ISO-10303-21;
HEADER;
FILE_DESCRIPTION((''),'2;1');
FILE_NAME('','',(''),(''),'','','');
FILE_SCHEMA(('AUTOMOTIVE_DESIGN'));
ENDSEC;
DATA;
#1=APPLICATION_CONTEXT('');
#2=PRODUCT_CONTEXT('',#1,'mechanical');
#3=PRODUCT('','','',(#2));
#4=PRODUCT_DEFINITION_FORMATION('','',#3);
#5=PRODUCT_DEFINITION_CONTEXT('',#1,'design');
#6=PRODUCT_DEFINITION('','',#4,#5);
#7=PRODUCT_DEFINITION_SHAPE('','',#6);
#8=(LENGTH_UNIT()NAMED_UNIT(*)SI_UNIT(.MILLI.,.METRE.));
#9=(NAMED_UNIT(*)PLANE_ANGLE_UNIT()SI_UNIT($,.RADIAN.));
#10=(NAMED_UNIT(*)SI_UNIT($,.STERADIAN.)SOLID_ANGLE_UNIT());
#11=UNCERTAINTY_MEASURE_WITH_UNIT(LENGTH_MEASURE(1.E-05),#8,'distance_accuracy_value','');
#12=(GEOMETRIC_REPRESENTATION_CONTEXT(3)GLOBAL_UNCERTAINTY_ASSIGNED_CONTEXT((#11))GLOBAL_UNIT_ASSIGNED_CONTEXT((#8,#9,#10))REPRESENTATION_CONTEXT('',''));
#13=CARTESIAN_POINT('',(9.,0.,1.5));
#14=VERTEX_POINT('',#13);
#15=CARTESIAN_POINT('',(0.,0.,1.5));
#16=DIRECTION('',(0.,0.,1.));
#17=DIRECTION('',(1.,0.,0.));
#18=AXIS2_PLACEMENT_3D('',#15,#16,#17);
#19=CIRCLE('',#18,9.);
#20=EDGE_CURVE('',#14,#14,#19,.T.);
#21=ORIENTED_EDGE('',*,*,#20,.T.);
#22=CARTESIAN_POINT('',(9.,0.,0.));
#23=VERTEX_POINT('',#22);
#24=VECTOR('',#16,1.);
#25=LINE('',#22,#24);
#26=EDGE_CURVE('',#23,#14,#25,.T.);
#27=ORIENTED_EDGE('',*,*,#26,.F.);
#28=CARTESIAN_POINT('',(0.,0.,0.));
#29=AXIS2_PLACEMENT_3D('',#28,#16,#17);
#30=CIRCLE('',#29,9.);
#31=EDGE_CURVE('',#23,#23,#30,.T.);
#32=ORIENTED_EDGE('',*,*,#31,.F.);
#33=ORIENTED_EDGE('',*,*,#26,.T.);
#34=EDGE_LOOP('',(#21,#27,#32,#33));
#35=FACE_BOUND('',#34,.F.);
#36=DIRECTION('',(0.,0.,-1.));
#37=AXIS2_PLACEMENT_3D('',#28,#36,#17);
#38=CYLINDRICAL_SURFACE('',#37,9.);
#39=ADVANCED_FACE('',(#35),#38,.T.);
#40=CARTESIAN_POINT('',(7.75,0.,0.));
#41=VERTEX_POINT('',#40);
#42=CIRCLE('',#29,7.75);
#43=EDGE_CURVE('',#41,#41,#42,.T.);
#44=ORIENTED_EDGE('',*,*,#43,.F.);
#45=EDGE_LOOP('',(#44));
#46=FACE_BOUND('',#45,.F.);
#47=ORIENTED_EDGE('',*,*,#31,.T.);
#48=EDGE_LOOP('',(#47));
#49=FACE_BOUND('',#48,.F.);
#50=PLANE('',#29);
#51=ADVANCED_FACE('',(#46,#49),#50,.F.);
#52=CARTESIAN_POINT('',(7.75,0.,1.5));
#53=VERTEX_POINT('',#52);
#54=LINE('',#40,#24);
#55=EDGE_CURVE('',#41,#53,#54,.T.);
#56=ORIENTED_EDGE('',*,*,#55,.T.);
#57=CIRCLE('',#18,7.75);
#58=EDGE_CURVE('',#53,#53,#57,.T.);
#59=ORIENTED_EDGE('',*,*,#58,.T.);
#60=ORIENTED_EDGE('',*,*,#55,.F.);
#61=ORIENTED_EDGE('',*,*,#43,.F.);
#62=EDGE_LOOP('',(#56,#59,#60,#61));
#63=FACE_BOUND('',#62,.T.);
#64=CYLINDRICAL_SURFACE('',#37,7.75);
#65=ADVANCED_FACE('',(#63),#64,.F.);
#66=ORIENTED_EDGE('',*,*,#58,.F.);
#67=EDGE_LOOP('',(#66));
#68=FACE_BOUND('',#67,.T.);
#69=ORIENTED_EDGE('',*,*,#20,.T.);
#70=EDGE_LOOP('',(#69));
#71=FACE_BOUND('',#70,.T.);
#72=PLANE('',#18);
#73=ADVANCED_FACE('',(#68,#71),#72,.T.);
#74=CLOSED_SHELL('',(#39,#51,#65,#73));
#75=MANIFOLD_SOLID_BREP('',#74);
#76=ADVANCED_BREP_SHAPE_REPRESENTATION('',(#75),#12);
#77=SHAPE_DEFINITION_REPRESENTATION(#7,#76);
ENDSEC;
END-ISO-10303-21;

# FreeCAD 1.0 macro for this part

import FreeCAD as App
import Part
import Sketcher

V = App.Vector
Q = App.Units.Quantity

doc = App.newDocument("Part")
params = doc.addObject("Spreadsheet::Sheet", "Params")
for row, (alias, value) in enumerate([
    ("sketch1_diameter", "18 mm"),
    ("sketch1_diameter2", "15.5 mm"),
    ("pad1_length", "1.5 mm"),
], start=1):
    params.set(f"A{row}", alias)
    params.set(f"B{row}", "=" + value)
    params.setAlias(f"B{row}", alias)

body = doc.addObject("PartDesign::Body", "Body")

# Sketch on XY plane
sketch1 = body.newObject("Sketcher::SketchObject", "Sketch")
sketch1.AttachmentSupport = (doc.getObject("XY_Plane"), [""])
sketch1.MapMode = "FlatFace"
sketch1.addGeometry([
    Part.Circle(V(0, 0, 0), V(0, 0, 1), 9),
    Part.Circle(V(0, 0, 0), V(0, 0, 1), 8),
], False)
sketch1.addConstraint([
    Sketcher.Constraint("Coincident", 0, 3, -1, 1),
    Sketcher.Constraint("Coincident", 1, 3, -1, 1),
    Sketcher.Constraint("Diameter", 0, Q("18 mm")),
    Sketcher.Constraint("Diameter", 1, Q("15.5 mm")),
])
sketch1.setExpression("Constraints[2]", "Params.sketch1_diameter")
sketch1.setExpression("Constraints[3]", "Params.sketch1_diameter2")
pad1 = body.newObject("PartDesign::Pad", "Pad")
pad1.Profile = sketch1
pad1.setExpression("Length", "Params.pad1_length")

doc.recompute()
